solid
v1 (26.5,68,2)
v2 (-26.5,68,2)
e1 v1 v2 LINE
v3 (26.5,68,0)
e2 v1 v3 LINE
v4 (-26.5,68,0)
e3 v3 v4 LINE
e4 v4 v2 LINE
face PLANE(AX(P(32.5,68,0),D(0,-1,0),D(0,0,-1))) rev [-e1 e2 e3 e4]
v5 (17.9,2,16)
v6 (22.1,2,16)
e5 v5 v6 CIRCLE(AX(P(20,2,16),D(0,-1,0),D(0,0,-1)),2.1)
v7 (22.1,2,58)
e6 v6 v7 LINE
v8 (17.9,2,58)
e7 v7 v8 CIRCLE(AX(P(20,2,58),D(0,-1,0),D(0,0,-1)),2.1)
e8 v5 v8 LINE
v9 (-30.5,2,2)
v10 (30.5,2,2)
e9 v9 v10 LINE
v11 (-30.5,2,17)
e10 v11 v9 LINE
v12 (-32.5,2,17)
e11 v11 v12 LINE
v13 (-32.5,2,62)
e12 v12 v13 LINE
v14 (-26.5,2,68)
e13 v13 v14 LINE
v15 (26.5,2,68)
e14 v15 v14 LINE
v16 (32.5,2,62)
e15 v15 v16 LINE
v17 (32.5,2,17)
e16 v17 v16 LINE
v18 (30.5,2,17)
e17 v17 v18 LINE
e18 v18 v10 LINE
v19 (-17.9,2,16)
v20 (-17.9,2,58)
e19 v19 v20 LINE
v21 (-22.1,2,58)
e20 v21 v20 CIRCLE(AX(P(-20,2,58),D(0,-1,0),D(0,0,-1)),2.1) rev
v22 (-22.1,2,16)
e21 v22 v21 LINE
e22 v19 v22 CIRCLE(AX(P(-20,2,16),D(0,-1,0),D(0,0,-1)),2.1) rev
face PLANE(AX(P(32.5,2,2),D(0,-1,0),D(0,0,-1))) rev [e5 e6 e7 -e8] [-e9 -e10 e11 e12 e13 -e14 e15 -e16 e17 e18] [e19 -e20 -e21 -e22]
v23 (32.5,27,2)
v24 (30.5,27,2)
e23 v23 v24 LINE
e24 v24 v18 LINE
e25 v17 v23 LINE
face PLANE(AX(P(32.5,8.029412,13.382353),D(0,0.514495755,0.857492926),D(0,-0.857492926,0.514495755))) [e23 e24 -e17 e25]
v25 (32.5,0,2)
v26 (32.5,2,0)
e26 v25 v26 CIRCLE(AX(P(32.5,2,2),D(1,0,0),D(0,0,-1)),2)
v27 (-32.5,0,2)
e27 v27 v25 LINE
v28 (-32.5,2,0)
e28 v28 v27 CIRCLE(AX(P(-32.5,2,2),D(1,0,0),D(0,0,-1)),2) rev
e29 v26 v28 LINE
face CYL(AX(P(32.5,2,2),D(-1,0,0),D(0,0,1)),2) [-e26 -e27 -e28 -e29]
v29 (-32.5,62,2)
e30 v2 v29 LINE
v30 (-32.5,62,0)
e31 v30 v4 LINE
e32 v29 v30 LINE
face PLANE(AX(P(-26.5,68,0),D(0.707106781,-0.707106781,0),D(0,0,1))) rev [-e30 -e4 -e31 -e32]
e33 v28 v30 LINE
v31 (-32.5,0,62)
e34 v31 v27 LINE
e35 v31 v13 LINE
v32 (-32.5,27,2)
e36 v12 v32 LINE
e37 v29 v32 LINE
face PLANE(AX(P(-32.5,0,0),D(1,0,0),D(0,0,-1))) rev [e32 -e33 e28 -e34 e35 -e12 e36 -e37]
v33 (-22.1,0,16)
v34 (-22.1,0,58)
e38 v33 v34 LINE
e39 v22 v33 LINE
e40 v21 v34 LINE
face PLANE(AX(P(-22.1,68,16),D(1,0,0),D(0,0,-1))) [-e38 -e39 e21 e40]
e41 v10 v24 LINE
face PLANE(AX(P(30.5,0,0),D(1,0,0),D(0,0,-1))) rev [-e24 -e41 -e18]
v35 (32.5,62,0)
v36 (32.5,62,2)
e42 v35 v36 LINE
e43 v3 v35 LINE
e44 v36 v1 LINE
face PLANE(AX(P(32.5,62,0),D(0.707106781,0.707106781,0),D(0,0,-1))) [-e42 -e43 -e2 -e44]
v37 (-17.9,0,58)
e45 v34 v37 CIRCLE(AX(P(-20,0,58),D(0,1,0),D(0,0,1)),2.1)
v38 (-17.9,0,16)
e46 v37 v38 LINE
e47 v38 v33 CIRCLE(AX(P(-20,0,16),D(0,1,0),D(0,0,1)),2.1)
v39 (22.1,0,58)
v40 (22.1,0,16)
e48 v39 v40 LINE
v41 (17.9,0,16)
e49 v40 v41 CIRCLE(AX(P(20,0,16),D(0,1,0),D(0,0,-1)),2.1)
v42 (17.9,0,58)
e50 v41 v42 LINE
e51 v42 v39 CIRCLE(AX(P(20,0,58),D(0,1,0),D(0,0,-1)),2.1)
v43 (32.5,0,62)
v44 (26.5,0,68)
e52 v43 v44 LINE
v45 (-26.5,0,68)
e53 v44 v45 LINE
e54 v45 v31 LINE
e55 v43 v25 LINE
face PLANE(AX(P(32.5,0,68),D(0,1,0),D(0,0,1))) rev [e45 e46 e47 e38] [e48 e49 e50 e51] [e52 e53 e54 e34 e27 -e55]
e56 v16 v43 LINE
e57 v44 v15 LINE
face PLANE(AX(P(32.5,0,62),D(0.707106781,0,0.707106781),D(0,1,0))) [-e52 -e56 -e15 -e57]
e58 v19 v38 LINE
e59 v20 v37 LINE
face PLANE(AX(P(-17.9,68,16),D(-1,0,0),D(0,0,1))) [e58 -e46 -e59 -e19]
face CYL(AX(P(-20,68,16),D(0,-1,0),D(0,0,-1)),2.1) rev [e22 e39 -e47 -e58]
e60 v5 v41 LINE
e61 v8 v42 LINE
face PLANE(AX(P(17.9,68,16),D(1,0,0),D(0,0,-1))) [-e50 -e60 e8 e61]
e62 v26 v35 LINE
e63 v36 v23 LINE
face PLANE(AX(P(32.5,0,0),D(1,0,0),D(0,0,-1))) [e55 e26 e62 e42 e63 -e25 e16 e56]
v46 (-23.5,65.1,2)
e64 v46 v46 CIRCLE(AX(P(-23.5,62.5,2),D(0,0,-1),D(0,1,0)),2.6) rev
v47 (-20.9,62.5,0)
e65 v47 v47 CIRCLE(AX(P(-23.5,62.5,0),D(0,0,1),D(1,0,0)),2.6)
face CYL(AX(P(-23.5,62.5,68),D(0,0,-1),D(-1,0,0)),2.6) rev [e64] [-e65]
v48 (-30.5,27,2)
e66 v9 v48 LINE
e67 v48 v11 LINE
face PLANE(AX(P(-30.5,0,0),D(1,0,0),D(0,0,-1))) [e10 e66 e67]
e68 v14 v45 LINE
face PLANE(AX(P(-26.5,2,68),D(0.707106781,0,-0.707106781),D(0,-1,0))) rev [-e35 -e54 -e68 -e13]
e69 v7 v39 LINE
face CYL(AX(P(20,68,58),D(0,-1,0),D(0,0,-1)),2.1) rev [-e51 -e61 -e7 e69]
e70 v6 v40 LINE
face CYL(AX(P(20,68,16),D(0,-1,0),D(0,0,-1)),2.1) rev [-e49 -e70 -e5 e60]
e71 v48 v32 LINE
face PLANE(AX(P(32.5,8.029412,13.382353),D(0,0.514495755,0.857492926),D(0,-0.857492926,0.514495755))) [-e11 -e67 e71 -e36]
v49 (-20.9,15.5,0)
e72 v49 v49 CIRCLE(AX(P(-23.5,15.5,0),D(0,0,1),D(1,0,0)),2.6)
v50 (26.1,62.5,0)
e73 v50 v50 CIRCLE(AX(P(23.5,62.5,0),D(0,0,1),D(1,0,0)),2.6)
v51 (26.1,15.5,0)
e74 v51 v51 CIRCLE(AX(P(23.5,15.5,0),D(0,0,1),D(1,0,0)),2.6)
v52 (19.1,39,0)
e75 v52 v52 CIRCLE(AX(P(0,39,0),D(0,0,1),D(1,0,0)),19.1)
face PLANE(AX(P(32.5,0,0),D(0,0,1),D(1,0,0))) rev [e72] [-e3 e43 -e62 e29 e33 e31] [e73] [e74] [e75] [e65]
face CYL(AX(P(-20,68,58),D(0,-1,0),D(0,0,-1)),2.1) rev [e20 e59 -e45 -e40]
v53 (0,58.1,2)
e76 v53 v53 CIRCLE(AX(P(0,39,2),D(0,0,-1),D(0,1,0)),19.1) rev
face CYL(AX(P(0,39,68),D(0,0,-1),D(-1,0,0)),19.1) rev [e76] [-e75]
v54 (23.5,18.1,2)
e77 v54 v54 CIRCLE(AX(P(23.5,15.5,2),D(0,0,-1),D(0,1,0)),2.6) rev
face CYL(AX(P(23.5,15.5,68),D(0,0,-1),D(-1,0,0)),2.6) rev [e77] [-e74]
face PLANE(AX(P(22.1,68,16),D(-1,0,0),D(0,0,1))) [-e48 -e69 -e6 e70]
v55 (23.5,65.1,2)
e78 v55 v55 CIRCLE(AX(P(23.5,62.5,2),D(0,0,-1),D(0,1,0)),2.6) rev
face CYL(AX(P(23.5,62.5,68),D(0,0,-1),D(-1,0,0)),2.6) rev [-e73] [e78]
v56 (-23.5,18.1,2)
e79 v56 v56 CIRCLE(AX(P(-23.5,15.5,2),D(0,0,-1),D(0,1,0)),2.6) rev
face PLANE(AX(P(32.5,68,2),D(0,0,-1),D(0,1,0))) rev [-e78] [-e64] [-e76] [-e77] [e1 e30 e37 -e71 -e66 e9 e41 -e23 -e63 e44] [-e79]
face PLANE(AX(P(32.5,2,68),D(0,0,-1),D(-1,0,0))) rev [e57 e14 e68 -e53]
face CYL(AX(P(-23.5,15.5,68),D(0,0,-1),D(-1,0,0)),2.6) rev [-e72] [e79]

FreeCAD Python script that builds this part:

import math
import FreeCAD as App
import Part
import Sketcher


def edges_at(feature, points):
    """Names of the edges that pass closest to the given points."""
    edges = feature.Shape.Edges
    near = lambda p: min(range(len(edges)), key=lambda i: edges[i].distToShape(Part.Vertex(*p))[0])
    return sorted({f"Edge{near(p) + 1}" for p in points})

doc = App.newDocument("Part")
body = doc.addObject("PartDesign::Body", "Body")

# Sketch on YZ plane
sketch1 = body.newObject("Sketcher::SketchObject", "Sketch")
sketch1.AttachmentSupport = (doc.getObject("YZ_Plane"), [""])
sketch1.MapMode = "FlatFace"
sketch1.addGeometry([
    Part.LineSegment(App.Vector(0, 68, 0), App.Vector(0, 0, 0)),  # 0
    Part.LineSegment(App.Vector(0, 0, 0), App.Vector(68, 0, 0)),  # 1
    Part.LineSegment(App.Vector(68, 0, 0), App.Vector(68, 2, 0)),  # 2
    Part.LineSegment(App.Vector(68, 2, 0), App.Vector(27, 2, 0)),  # 3
    Part.LineSegment(App.Vector(27, 2, 0), App.Vector(2, 17, 0)),  # 4
    Part.LineSegment(App.Vector(2, 17, 0), App.Vector(2, 68, 0)),  # 5
    Part.LineSegment(App.Vector(2, 68, 0), App.Vector(0, 68, 0)),  # 6
], False)
sketch1.addConstraint([
    Sketcher.Constraint("Coincident", 0, 2, 1, 1),
    Sketcher.Constraint("Coincident", 1, 2, 2, 1),
    Sketcher.Constraint("Coincident", 2, 2, 3, 1),
    Sketcher.Constraint("Coincident", 3, 2, 4, 1),
    Sketcher.Constraint("Coincident", 4, 2, 5, 1),
    Sketcher.Constraint("Coincident", 5, 2, 6, 1),
    Sketcher.Constraint("Coincident", 6, 2, 0, 1),
    Sketcher.Constraint("Vertical", 0),
    Sketcher.Constraint("Horizontal", 1),
    Sketcher.Constraint("Vertical", 2),
    Sketcher.Constraint("Horizontal", 3),
    Sketcher.Constraint("Vertical", 5),
    Sketcher.Constraint("Horizontal", 6),
    Sketcher.Constraint("Coincident", 0, 2, -1, 1),
    Sketcher.Constraint("Equal", 1, 0),
    Sketcher.Constraint("Equal", 6, 2),
    Sketcher.Constraint("DistanceX", 1, 1, 1, 2, 68.0),
    Sketcher.Constraint("DistanceX", 3, 2, 3, 1, 41.0),
    Sketcher.Constraint("DistanceX", 6, 2, 6, 1, 2.0),
    Sketcher.Constraint("DistanceY", 5, 1, 5, 2, 51.0),
])
pad1 = body.newObject("PartDesign::Pad", "Pad")
pad1.Profile = sketch1
pad1.Length = 65
pad1.Midplane = True

# Sketch on YZ plane
sketch2 = body.newObject("Sketcher::SketchObject", "Sketch001")
sketch2.AttachmentSupport = (doc.getObject("YZ_Plane"), [""])
sketch2.MapMode = "FlatFace"
sketch2.addGeometry([
    Part.LineSegment(App.Vector(27, 2, 0), App.Vector(2, 17, 0)),
    Part.LineSegment(App.Vector(2, 17, 0), App.Vector(2, 2, 0)),
    Part.LineSegment(App.Vector(2, 2, 0), App.Vector(27, 2, 0)),
], False)
sketch2.addConstraint([
    Sketcher.Constraint("Coincident", 0, 2, 1, 1),
    Sketcher.Constraint("Coincident", 1, 2, 2, 1),
    Sketcher.Constraint("Coincident", 2, 2, 0, 1),
    Sketcher.Constraint("Vertical", 1),
    Sketcher.Constraint("Horizontal", 2),
    Sketcher.Constraint("DistanceX", 2, 1, 2, 2, 25.0),
    Sketcher.Constraint("DistanceY", 1, 2, 1, 1, 15.0),
    Sketcher.Constraint("DistanceX", -1, 1, 0, 2, 2.0),
    Sketcher.Constraint("DistanceY", -1, 1, 0, 2, 17.0),
])
pocket1 = body.newObject("PartDesign::Pocket", "Pocket")
pocket1.Profile = sketch2
pocket1.Length = 61
pocket1.Midplane = True

# Sketch on XZ plane
sketch3 = body.newObject("Sketcher::SketchObject", "Sketch002")
sketch3.AttachmentSupport = (doc.getObject("XZ_Plane"), [""])
sketch3.MapMode = "FlatFace"
sketch3.addGeometry([
    Part.LineSegment(App.Vector(-17.9, 58, 0), App.Vector(-17.9, 16, 0)),  # 0
    Part.ArcOfCircle(Part.Circle(App.Vector(-20, 16, 0), App.Vector(0, 0, 1), 2.1), math.radians(180), math.radians(360)),  # 1
    Part.LineSegment(App.Vector(-22.1, 16, 0), App.Vector(-22.1, 58, 0)),  # 2
    Part.ArcOfCircle(Part.Circle(App.Vector(-20, 58, 0), App.Vector(0, 0, 1), 2.1), math.radians(0), math.radians(180)),  # 3
    Part.LineSegment(App.Vector(17.9, 16, 0), App.Vector(17.9, 58, 0)),  # 4
    Part.ArcOfCircle(Part.Circle(App.Vector(20, 58, 0), App.Vector(0, 0, 1), 2.1), math.radians(0), math.radians(180)),  # 5
    Part.LineSegment(App.Vector(22.1, 58, 0), App.Vector(22.1, 16, 0)),  # 6
    Part.ArcOfCircle(Part.Circle(App.Vector(20, 16, 0), App.Vector(0, 0, 1), 2.1), math.radians(180), math.radians(360)),  # 7
], False)
sketch3.addConstraint([
    Sketcher.Constraint("Tangent", 0, 2, 1, 2),
    Sketcher.Constraint("Tangent", 1, 1, 2, 1),
    Sketcher.Constraint("Tangent", 2, 2, 3, 2),
    Sketcher.Constraint("Tangent", 3, 1, 0, 1),
    Sketcher.Constraint("Tangent", 4, 2, 5, 2),
    Sketcher.Constraint("Tangent", 5, 1, 6, 1),
    Sketcher.Constraint("Tangent", 6, 2, 7, 2),
    Sketcher.Constraint("Tangent", 7, 1, 4, 1),
    Sketcher.Constraint("Vertical", 0),
    Sketcher.Constraint("Vertical", 2),
    Sketcher.Constraint("Vertical", 4),
    Sketcher.Constraint("Vertical", 6),
    Sketcher.Constraint("Equal", 3, 5),
    Sketcher.Constraint("Symmetric", 3, 3, 5, 3, -2),
    Sketcher.Constraint("Horizontal", 1, 3, 7, 3),
    Sketcher.Constraint("Radius", 1, 2.1),
    Sketcher.Constraint("DistanceY", 0, 2, 0, 1, 42.0),
    Sketcher.Constraint("DistanceX", 1, 3, -1, 1, 20.0),
    Sketcher.Constraint("DistanceY", -1, 1, 1, 3, 16.0),
])
pad2 = body.newObject("PartDesign::Pad", "Pad001")
pad2.Profile = sketch3
pad2.Length = 68
pad2.Reversed = True

# Sketch on XZ plane
sketch4 = body.newObject("Sketcher::SketchObject", "Sketch003")
sketch4.AttachmentSupport = (doc.getObject("XZ_Plane"), [""])
sketch4.MapMode = "FlatFace"
sketch4.addGeometry([
    Part.LineSegment(App.Vector(-17.9, 58, 0), App.Vector(-17.9, 16, 0)),  # 0
    Part.ArcOfCircle(Part.Circle(App.Vector(-20, 16, 0), App.Vector(0, 0, 1), 2.1), math.radians(180), math.radians(360)),  # 1
    Part.LineSegment(App.Vector(-22.1, 16, 0), App.Vector(-22.1, 58, 0)),  # 2
    Part.ArcOfCircle(Part.Circle(App.Vector(-20, 58, 0), App.Vector(0, 0, 1), 2.1), math.radians(0), math.radians(180)),  # 3
    Part.LineSegment(App.Vector(17.9, 16, 0), App.Vector(17.9, 58, 0)),  # 4
    Part.ArcOfCircle(Part.Circle(App.Vector(20, 58, 0), App.Vector(0, 0, 1), 2.1), math.radians(0), math.radians(180)),  # 5
    Part.LineSegment(App.Vector(22.1, 58, 0), App.Vector(22.1, 16, 0)),  # 6
    Part.ArcOfCircle(Part.Circle(App.Vector(20, 16, 0), App.Vector(0, 0, 1), 2.1), math.radians(180), math.radians(360)),  # 7
], False)
sketch4.addConstraint([
    Sketcher.Constraint("Tangent", 0, 2, 1, 2),
    Sketcher.Constraint("Tangent", 1, 1, 2, 1),
    Sketcher.Constraint("Tangent", 2, 2, 3, 2),
    Sketcher.Constraint("Tangent", 3, 1, 0, 1),
    Sketcher.Constraint("Tangent", 4, 2, 5, 2),
    Sketcher.Constraint("Tangent", 5, 1, 6, 1),
    Sketcher.Constraint("Tangent", 6, 2, 7, 2),
    Sketcher.Constraint("Tangent", 7, 1, 4, 1),
    Sketcher.Constraint("Vertical", 0),
    Sketcher.Constraint("Vertical", 2),
    Sketcher.Constraint("Vertical", 4),
    Sketcher.Constraint("Vertical", 6),
    Sketcher.Constraint("Equal", 3, 5),
    Sketcher.Constraint("Symmetric", 3, 3, 5, 3, -2),
    Sketcher.Constraint("Horizontal", 1, 3, 7, 3),
    Sketcher.Constraint("Radius", 1, 2.1),
    Sketcher.Constraint("DistanceY", 0, 2, 0, 1, 42.0),
    Sketcher.Constraint("DistanceX", 1, 3, -1, 1, 20.0),
    Sketcher.Constraint("DistanceY", -1, 1, 1, 3, 16.0),
])
pocket2 = body.newObject("PartDesign::Pocket", "Pocket001")
pocket2.Profile = sketch4
pocket2.Type = "ThroughAll"

# Sketch on XY plane
sketch5 = body.newObject("Sketcher::SketchObject", "Sketch004")
sketch5.AttachmentSupport = (doc.getObject("XY_Plane"), [""])
sketch5.MapMode = "FlatFace"
sketch5.addGeometry([
    Part.Circle(App.Vector(0, 39, 0), App.Vector(0, 0, 1), 19.1),  # 0
    Part.Circle(App.Vector(-23.5, 62.5, 0), App.Vector(0, 0, 1), 2.6),  # 1
    Part.Circle(App.Vector(23.5, 62.5, 0), App.Vector(0, 0, 1), 2.6),  # 2
    Part.Circle(App.Vector(23.5, 15.5, 0), App.Vector(0, 0, 1), 2.6),  # 3
    Part.Circle(App.Vector(-23.5, 15.5, 0), App.Vector(0, 0, 1), 2.6),  # 4
], False)
sketch5.addConstraint([
    Sketcher.Constraint("Equal", 1, 2),
    Sketcher.Constraint("Equal", 2, 3),
    Sketcher.Constraint("Equal", 3, 4),
    Sketcher.Constraint("Symmetric", 1, 3, 2, 3, -2),
    Sketcher.Constraint("Symmetric", 3, 3, 4, 3, -2),
    Sketcher.Constraint("PointOnObject", 0, 3, -2),
    Sketcher.Constraint("Vertical", 2, 3, 3, 3),
    Sketcher.Constraint("Diameter", 0, 38.2),
    Sketcher.Constraint("Diameter", 1, 5.2),
    Sketcher.Constraint("DistanceY", -1, 1, 0, 3, 39.0),
    Sketcher.Constraint("DistanceX", 1, 3, 2, 3, 47.0),
    Sketcher.Constraint("DistanceY", 3, 3, 2, 3, 47.0),
    Sketcher.Constraint("DistanceY", -1, 1, 1, 3, 62.5),
])
pocket3 = body.newObject("PartDesign::Pocket", "Pocket002")
pocket3.Profile = sketch5
pocket3.Type = "ThroughAll"
pocket3.Reversed = True
doc.recompute()

chamfer = body.newObject("PartDesign::Chamfer", "Chamfer")
chamfer.Base = (pocket3, edges_at(pocket3, [(-32.5, 68, 1)]))
chamfer.Size = 6
doc.recompute()

chamfer2 = body.newObject("PartDesign::Chamfer", "Chamfer001")
chamfer2.Base = (chamfer, edges_at(chamfer, [(32.5, 68, 1)]))
chamfer2.Size = 6
doc.recompute()

chamfer3 = body.newObject("PartDesign::Chamfer", "Chamfer002")
chamfer3.Base = (chamfer2, edges_at(chamfer2, [(-32.5, 1, 68)]))
chamfer3.Size = 6
doc.recompute()

chamfer4 = body.newObject("PartDesign::Chamfer", "Chamfer003")
chamfer4.Base = (chamfer3, edges_at(chamfer3, [(32.5, 1, 68)]))
chamfer4.Size = 6
doc.recompute()

fillet = body.newObject("PartDesign::Fillet", "Fillet")
fillet.Base = (chamfer4, edges_at(chamfer4, [(0, 0, 0)]))
fillet.Radius = 2

doc.recompute()
